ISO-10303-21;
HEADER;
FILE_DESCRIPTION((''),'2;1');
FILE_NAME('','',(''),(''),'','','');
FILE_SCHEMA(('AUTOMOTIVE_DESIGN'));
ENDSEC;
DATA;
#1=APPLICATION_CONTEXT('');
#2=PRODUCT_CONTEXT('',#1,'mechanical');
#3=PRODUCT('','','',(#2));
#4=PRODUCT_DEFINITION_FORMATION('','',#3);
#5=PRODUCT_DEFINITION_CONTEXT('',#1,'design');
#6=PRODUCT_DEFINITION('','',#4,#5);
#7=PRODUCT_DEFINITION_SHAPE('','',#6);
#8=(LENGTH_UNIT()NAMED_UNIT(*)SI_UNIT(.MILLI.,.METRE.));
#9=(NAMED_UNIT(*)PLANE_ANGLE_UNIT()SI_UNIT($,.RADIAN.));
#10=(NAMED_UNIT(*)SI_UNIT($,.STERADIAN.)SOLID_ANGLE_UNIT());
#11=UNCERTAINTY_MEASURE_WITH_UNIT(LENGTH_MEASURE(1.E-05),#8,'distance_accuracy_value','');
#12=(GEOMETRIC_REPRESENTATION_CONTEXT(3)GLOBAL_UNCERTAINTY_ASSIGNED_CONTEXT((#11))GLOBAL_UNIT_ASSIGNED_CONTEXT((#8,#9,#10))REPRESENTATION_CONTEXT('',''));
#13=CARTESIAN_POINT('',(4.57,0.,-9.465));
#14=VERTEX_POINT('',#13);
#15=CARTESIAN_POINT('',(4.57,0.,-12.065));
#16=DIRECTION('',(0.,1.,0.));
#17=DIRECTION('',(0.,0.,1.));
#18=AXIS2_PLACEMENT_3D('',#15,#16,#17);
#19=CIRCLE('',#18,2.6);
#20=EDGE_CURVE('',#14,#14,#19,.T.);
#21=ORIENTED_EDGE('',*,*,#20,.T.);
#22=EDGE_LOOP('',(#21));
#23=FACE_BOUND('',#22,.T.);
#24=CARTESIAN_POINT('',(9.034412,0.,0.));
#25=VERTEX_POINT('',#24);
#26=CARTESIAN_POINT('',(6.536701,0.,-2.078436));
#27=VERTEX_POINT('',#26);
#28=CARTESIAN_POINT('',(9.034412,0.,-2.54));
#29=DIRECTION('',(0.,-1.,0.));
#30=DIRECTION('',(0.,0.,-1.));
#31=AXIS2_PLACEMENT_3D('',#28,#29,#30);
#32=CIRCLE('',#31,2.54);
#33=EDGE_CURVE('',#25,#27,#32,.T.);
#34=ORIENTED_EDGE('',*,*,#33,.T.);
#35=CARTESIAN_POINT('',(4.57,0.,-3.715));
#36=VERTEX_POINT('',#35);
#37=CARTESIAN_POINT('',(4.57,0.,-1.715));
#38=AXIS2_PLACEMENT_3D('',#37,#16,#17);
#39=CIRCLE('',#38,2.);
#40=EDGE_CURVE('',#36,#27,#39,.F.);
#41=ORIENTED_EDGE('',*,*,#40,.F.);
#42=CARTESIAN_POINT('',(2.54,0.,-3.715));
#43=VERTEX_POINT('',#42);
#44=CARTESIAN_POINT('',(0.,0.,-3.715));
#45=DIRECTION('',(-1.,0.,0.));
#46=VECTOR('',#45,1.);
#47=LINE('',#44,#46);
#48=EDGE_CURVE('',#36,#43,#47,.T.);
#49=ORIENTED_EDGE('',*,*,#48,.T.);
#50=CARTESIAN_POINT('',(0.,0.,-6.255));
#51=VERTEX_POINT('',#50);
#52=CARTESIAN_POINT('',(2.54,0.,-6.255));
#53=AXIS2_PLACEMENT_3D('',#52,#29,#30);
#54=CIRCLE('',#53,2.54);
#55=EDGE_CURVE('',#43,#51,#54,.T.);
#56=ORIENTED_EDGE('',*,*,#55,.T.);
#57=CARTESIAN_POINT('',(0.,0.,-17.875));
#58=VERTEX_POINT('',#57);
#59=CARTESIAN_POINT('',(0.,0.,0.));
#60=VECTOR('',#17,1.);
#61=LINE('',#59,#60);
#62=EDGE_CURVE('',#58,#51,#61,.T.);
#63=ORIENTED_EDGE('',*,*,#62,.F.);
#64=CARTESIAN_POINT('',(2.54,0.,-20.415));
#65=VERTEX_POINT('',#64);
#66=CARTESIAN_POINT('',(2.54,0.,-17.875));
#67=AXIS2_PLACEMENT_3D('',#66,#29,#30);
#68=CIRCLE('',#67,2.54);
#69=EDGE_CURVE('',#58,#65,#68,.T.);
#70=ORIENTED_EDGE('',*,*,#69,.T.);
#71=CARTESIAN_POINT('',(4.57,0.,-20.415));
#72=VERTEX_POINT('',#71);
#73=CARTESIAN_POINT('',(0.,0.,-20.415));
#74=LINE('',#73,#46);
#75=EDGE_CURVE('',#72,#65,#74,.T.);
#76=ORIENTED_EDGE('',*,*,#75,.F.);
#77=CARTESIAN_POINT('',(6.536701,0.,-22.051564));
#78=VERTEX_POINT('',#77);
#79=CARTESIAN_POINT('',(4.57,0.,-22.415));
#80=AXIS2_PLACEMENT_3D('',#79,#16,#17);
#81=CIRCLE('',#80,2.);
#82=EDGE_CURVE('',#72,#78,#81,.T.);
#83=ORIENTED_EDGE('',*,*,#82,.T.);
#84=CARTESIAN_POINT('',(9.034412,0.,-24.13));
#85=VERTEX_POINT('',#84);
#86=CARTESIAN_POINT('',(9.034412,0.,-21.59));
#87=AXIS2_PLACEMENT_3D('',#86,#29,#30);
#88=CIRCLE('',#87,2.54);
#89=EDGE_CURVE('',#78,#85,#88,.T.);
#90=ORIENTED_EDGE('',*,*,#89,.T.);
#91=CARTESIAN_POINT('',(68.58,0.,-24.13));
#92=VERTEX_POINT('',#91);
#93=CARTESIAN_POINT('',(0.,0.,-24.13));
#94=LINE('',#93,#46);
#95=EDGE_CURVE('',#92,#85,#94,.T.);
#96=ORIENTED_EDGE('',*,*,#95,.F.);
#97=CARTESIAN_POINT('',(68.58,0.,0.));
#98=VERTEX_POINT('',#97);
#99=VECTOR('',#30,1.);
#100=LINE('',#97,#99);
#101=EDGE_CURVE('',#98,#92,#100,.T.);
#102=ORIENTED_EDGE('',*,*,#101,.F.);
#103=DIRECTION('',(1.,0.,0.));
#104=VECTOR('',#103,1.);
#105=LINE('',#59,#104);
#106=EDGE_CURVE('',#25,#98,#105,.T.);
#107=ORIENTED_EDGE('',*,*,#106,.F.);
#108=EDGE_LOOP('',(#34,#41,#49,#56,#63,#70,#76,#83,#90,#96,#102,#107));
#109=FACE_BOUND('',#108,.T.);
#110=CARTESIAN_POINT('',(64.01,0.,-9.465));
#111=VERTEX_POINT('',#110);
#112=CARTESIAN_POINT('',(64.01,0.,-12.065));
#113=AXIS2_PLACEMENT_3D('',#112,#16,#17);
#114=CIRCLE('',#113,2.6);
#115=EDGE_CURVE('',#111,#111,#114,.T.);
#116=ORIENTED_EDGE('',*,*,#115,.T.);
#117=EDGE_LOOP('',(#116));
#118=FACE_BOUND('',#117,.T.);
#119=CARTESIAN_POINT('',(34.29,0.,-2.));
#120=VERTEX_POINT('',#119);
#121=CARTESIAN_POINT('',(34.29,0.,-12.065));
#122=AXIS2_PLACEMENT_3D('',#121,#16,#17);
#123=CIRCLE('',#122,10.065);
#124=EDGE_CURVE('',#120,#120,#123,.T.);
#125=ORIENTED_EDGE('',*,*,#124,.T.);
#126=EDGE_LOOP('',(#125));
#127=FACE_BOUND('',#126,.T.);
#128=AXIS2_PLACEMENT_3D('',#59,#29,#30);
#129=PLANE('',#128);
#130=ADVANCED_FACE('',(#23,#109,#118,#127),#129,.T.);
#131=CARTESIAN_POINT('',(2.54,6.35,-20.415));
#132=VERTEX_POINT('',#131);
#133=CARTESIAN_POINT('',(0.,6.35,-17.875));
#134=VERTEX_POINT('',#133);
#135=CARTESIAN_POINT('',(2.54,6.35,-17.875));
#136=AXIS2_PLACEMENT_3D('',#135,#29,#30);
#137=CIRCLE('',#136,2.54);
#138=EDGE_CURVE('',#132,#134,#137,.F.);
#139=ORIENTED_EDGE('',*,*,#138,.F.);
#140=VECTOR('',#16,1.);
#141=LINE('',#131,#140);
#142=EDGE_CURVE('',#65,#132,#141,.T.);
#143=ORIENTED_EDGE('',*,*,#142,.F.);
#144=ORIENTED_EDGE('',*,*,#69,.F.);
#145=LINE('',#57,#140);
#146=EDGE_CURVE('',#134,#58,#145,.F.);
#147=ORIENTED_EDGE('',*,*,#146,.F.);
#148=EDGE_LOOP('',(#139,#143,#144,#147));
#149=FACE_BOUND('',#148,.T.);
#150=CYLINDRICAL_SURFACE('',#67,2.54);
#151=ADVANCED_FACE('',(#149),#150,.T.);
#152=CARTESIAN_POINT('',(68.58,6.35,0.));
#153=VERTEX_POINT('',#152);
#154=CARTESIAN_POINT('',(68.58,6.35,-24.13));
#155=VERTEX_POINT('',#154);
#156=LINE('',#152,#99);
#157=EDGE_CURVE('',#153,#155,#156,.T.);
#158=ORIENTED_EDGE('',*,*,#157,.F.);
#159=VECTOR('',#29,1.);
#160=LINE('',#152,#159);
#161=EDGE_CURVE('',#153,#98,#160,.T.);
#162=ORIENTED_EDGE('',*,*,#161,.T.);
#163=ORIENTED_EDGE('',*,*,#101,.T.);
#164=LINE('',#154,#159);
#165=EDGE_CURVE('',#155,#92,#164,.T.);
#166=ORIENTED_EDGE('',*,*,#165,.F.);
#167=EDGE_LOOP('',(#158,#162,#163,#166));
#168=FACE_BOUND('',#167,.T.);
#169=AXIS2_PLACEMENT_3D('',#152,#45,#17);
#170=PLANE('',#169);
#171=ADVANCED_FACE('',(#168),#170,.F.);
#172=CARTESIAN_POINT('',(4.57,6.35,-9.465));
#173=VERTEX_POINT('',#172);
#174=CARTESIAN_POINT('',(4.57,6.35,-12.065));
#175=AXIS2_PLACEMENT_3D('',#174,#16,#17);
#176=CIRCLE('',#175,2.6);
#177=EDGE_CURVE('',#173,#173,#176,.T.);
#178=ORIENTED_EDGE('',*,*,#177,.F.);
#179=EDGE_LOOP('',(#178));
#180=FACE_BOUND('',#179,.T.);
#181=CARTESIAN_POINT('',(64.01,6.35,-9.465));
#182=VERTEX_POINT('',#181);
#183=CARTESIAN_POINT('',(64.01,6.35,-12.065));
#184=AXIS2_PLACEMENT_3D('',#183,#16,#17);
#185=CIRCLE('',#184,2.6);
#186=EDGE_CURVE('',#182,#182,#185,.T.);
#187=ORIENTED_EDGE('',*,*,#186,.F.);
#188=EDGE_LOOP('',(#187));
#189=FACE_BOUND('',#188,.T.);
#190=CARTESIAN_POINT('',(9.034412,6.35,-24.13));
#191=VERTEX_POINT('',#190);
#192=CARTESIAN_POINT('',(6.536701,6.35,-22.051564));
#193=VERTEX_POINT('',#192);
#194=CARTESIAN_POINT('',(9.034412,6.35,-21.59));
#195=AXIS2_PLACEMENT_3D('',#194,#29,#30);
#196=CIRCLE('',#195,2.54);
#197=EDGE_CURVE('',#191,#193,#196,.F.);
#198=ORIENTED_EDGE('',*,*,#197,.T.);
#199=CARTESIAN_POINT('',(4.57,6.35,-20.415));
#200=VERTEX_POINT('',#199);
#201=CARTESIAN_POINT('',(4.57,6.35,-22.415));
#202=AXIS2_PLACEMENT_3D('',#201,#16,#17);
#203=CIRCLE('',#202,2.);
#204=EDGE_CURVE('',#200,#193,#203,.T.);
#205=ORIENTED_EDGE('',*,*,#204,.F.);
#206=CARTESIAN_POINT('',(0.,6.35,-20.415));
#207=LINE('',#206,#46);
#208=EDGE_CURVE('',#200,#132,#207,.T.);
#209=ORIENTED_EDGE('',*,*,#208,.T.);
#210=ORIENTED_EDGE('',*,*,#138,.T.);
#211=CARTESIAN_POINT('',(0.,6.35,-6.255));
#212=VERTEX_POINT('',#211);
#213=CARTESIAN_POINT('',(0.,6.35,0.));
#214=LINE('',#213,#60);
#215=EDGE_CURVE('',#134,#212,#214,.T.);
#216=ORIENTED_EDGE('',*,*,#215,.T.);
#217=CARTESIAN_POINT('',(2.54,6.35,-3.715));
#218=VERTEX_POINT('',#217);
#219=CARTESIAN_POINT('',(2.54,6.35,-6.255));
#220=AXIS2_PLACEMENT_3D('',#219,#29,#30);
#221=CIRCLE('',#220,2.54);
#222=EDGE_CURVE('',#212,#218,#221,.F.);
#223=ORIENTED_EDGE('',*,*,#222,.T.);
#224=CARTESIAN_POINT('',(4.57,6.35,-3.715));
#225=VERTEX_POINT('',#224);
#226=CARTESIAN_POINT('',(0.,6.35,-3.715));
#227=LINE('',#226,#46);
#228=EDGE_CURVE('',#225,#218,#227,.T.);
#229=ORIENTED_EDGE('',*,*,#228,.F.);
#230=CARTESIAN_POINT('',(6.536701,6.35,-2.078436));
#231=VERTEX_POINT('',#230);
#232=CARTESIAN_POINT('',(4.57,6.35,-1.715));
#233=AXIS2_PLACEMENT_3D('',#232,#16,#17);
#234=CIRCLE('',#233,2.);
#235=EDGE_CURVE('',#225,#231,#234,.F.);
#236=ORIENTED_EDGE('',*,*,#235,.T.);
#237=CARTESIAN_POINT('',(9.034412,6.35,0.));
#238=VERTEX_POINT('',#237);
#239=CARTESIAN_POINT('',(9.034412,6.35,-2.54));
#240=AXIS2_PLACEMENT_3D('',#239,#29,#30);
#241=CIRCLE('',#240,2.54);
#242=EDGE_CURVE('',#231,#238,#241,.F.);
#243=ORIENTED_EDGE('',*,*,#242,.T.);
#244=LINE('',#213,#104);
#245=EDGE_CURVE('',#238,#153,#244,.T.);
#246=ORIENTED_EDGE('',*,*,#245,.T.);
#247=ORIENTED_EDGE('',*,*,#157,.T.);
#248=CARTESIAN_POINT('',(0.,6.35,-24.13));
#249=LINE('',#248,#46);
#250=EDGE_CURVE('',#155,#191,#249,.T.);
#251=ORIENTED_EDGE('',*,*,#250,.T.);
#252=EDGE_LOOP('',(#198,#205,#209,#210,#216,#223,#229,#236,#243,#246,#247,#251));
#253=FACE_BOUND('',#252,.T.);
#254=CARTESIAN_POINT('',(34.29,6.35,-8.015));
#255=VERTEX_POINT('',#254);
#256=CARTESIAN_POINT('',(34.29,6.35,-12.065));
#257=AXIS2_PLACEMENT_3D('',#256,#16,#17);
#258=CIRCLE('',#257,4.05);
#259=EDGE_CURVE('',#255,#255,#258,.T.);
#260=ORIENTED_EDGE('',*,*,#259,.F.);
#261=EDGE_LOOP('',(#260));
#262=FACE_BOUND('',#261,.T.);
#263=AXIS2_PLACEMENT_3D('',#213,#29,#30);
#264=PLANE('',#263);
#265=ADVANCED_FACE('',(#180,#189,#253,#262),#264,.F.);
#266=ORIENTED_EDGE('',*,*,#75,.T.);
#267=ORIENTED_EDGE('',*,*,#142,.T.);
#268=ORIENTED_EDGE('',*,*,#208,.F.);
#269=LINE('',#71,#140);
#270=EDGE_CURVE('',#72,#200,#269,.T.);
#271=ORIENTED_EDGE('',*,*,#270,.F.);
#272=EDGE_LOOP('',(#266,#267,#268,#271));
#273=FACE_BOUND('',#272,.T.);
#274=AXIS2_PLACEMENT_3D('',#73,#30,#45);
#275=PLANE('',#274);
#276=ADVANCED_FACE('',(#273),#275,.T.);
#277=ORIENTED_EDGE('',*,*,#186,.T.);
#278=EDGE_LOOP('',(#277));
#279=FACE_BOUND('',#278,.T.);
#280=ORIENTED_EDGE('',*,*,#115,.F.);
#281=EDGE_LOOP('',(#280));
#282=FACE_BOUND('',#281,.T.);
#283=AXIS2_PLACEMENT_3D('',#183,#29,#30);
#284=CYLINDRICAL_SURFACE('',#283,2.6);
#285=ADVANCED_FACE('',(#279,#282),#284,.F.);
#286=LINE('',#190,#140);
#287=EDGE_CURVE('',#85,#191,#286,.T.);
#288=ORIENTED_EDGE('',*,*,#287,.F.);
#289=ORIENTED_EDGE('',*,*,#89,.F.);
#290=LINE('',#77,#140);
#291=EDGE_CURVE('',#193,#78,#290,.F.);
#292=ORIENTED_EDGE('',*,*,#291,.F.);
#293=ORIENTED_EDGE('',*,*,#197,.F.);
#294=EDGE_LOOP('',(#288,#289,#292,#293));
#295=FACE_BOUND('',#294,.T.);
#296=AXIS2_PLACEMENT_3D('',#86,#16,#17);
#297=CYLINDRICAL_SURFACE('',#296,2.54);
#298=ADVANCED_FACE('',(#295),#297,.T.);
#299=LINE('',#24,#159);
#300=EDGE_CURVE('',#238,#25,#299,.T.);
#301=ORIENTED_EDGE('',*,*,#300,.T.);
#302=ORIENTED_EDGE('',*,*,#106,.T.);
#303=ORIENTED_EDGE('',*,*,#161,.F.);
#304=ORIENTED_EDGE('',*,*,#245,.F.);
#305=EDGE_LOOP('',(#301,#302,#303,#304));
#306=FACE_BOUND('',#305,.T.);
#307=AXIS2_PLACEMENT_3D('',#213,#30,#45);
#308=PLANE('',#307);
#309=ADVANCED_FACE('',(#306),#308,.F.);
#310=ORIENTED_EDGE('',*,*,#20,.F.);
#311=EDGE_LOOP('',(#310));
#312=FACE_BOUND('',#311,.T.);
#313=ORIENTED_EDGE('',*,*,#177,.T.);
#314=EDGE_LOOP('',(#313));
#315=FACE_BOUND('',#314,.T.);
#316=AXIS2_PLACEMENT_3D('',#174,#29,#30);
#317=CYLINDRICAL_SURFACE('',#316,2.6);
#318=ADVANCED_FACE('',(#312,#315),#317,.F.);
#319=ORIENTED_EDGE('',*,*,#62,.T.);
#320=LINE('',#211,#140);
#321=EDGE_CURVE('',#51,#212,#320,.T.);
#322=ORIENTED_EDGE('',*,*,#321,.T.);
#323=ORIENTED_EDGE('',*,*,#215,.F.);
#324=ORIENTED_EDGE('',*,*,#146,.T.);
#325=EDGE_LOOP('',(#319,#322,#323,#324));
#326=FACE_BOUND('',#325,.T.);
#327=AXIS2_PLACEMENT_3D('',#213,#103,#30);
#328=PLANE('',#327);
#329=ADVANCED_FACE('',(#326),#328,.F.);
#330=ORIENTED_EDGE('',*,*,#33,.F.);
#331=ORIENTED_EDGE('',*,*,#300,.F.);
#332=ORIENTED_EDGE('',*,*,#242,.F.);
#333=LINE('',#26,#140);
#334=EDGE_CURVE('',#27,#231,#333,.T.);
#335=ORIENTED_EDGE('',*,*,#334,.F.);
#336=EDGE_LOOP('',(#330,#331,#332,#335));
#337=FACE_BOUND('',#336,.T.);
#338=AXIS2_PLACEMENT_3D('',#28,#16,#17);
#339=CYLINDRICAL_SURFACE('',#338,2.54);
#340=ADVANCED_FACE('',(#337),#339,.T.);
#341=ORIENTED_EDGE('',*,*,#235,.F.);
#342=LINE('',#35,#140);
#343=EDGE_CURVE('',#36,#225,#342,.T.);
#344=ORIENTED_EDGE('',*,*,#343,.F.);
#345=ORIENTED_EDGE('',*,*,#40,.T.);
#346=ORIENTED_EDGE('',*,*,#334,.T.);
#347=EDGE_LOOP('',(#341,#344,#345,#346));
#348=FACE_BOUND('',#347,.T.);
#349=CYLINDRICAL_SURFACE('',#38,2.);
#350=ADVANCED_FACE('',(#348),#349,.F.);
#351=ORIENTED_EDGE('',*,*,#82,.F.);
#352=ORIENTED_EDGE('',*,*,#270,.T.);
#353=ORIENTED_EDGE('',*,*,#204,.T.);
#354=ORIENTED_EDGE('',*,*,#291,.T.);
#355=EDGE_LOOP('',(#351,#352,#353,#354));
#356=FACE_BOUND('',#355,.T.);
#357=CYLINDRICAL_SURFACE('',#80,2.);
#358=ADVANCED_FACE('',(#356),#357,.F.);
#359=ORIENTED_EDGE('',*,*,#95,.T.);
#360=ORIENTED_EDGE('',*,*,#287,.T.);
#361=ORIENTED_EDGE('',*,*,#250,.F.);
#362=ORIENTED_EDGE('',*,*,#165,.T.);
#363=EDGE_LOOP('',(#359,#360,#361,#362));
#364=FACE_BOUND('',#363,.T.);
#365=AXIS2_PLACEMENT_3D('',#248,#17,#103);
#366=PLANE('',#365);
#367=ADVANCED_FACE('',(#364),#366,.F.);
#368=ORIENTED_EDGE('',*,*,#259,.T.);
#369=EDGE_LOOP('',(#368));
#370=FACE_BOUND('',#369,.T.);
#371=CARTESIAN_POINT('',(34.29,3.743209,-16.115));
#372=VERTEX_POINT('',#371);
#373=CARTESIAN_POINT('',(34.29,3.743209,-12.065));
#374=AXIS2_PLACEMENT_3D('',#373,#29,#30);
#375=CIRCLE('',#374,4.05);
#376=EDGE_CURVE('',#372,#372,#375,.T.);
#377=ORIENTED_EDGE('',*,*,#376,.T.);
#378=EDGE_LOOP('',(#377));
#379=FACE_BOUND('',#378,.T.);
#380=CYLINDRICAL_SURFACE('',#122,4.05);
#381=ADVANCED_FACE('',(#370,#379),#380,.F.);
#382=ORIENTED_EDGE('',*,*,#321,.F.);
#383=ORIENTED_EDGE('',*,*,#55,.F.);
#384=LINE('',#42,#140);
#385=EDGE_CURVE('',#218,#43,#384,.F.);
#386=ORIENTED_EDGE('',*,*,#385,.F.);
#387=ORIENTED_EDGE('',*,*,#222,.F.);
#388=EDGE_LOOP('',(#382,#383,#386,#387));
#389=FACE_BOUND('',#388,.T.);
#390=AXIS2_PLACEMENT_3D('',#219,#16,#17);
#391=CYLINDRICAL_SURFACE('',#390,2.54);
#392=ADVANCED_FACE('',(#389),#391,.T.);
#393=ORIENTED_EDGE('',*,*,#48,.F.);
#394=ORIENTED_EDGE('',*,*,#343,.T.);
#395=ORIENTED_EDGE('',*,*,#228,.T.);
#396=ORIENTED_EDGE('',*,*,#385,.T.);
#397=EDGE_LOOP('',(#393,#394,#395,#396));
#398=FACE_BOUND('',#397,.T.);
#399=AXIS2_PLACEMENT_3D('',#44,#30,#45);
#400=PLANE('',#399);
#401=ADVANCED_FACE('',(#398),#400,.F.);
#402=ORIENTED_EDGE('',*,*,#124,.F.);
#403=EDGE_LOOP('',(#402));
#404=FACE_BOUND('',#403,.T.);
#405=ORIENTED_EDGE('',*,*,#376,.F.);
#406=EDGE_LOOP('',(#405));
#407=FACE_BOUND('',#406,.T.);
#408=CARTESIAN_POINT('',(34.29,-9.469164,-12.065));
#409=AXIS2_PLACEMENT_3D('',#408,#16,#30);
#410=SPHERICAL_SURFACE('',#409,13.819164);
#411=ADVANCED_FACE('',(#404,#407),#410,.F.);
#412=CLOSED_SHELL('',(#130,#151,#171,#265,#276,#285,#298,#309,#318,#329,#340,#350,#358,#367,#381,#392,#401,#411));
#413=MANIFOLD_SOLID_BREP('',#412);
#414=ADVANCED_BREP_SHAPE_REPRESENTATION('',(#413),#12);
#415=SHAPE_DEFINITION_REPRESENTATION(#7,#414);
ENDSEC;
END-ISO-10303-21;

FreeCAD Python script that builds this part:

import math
import FreeCAD as App
import Part
import Sketcher

V = App.Vector
Q = App.Units.Quantity


def edges_at(feature, points):
    """Names of the edges that pass closest to the given points."""
    edges = feature.Shape.Edges
    near = lambda p: min(range(len(edges)), key=lambda i: edges[i].distToShape(Part.Vertex(*p))[0])
    return sorted({f"Edge{near(p) + 1}" for p in points})


def add_polygon(sketch, points):
    """Adds a closed chain of lines whose ends are joined by coincident constraints."""
    first, n = sketch.GeometryCount, len(points)
    for a, b in zip(points, points[1:] + points[:1]):
        sketch.addGeometry(Part.LineSegment(App.Vector(*a, 0), App.Vector(*b, 0)), False)
    for i in range(n):
        sketch.addConstraint(Sketcher.Constraint("Coincident", first + i, 2, first + (i + 1) % n, 1))

doc = App.newDocument("Part")
body = doc.addObject("PartDesign::Body", "Body")

# Sketch on XZ plane
sketch1 = body.newObject("Sketcher::SketchObject", "Sketch")
sketch1.AttachmentSupport = (doc.getObject("XZ_Plane"), [""])
sketch1.MapMode = "FlatFace"
add_polygon(sketch1, [(0, -24.13), (0, 0), (68.58, 0), (68.58, -24.13)])  # lines 0-3
sketch1.addGeometry(Part.Circle(V(4.57, -12.065, 0), V(0, 0, 1), 2.6), False)  # 4
sketch1.addGeometry(Part.Circle(V(64.01, -12.065, 0), V(0, 0, 1), 2.6), False)  # 5
sketch1.addConstraint([
    Sketcher.Constraint("Vertical", 0),
    Sketcher.Constraint("Horizontal", 1),
    Sketcher.Constraint("Vertical", 2),
    Sketcher.Constraint("Horizontal", 3),
    Sketcher.Constraint("Coincident", 0, 2, -1, 1),
    Sketcher.Constraint("Equal", 4, 5),
    Sketcher.Constraint("Horizontal", 4, 3, 5, 3),
    Sketcher.Constraint("DistanceX", 1, 1, 1, 2, Q("2.7 in")),
    Sketcher.Constraint("DistanceY", 0, 1, 0, 2, Q("0.95 in")),
    Sketcher.Constraint("Diameter", 4, Q("5.2 mm")),
    Sketcher.Constraint("DistanceY", 4, 3, -1, 1, Q("0.475 in")),
    Sketcher.Constraint("DistanceX", -1, 1, 4, 3, Q("4.57 mm")),
    Sketcher.Constraint("DistanceX", -1, 1, 5, 3, Q("64.01 mm")),
])
pad1 = body.newObject("PartDesign::Pad", "Pad")
pad1.Profile = sketch1
pad1.Length = Q("0.25 in")
pad1.Reversed = True

# Sketch on XZ plane
sketch2 = body.newObject("Sketcher::SketchObject", "Sketch001")
sketch2.AttachmentSupport = (doc.getObject("XZ_Plane"), [""])
sketch2.MapMode = "FlatFace"
sketch2.AttachmentOffset = App.Placement(V(0, 0, -0.25 * 25.4), App.Rotation())
sketch2.addGeometry([
    Part.LineSegment(V(4.57, -3.715, 0), V(0, -3.715, 0)),  # 0
    Part.LineSegment(V(0, -3.715, 0), V(0, 0, 0)),  # 1
    Part.LineSegment(V(0, 0, 0), V(6.57, 0, 0)),  # 2
    Part.LineSegment(V(6.57, 0, 0), V(6.57, -1.715, 0)),  # 3
    Part.ArcOfCircle(Part.Circle(V(4.57, -1.715, 0), V(0, 0, 1), 2), math.radians(-90), math.radians(0)),  # 4
    Part.ArcOfCircle(Part.Circle(V(4.57, -22.415, 0), V(0, 0, 1), 2), math.radians(0), math.radians(90)),  # 5
    Part.LineSegment(V(6.57, -22.415, 0), V(6.57, -24.13, 0)),  # 6
    Part.LineSegment(V(6.57, -24.13, 0), V(0, -24.13, 0)),  # 7
    Part.LineSegment(V(0, -24.13, 0), V(0, -20.415, 0)),  # 8
    Part.LineSegment(V(0, -20.415, 0), V(4.57, -20.415, 0)),  # 9
], False)
sketch2.addConstraint([
    Sketcher.Constraint("Coincident", 0, 2, 1, 1),
    Sketcher.Constraint("Coincident", 1, 2, 2, 1),
    Sketcher.Constraint("Coincident", 2, 2, 3, 1),
    Sketcher.Constraint("Tangent", 3, 2, 4, 2),
    Sketcher.Constraint("Tangent", 4, 1, 0, 1),
    Sketcher.Constraint("Tangent", 5, 1, 6, 1),
    Sketcher.Constraint("Coincident", 6, 2, 7, 1),
    Sketcher.Constraint("Coincident", 7, 2, 8, 1),
    Sketcher.Constraint("Coincident", 8, 2, 9, 1),
    Sketcher.Constraint("Tangent", 9, 2, 5, 2),
    Sketcher.Constraint("Horizontal", 0),
    Sketcher.Constraint("Vertical", 1),
    Sketcher.Constraint("Horizontal", 2),
    Sketcher.Constraint("Vertical", 3),
    Sketcher.Constraint("Vertical", 6),
    Sketcher.Constraint("Horizontal", 7),
    Sketcher.Constraint("Vertical", 8),
    Sketcher.Constraint("Horizontal", 9),
    Sketcher.Constraint("Coincident", 1, 2, -1, 1),
    Sketcher.Constraint("Equal", 4, 5),
    Sketcher.Constraint("PointOnObject", 7, 2, -2),
    Sketcher.Constraint("Vertical", 4, 3, 5, 3),
    Sketcher.Constraint("Equal", 3, 6),
    Sketcher.Constraint("DistanceY", 6, 2, -1, 1, Q("0.95 in")),
    Sketcher.Constraint("Radius", 4, Q("2 mm")),
    Sketcher.Constraint("DistanceX", 0, 2, 0, 1, Q("4.57 mm")),
    Sketcher.Constraint("DistanceY", 1, 1, 1, 2, Q("3.715 mm")),
])
pocket1 = body.newObject("PartDesign::Pocket", "Pocket")
pocket1.Profile = sketch2
pocket1.Type = "ThroughAll"
pocket1.Reversed = True
doc.recompute()

fillet = body.newObject("PartDesign::Fillet", "Fillet")
fillet.Base = (pocket1, edges_at(pocket1, [
    (6.57, 3.175, 0),
    (0, 3.175, -3.715),
    (0, 3.175, -20.415),
    (6.57, 3.175, -24.13),
]))
fillet.Radius = Q("0.1 in")

# Sketch on XZ plane
sketch3 = body.newObject("Sketcher::SketchObject", "Sketch002")
sketch3.AttachmentSupport = (doc.getObject("XZ_Plane"), [""])
sketch3.MapMode = "FlatFace"
sketch3.AttachmentOffset = App.Placement(V(0, 0, -0.25 * 25.4), App.Rotation())
sketch3.addGeometry(Part.Circle(V(34.29, -12.065, 0), V(0, 0, 1), 4.05), False)
sketch3.addConstraint([
    Sketcher.Constraint("Diameter", 0, Q("8.1 mm")),
    Sketcher.Constraint("DistanceX", -1, 1, 0, 3, Q("1.35 in")),
    Sketcher.Constraint("DistanceY", 0, 3, -1, 1, Q("0.475 in")),
])
pocket2 = body.newObject("PartDesign::Pocket", "Pocket001")
pocket2.Profile = sketch3
pocket2.Type = "ThroughAll"
pocket2.Reversed = True

# Sketch on YZ plane
sketch4 = body.newObject("Sketcher::SketchObject", "Sketch003")
sketch4.AttachmentSupport = (doc.getObject("YZ_Plane"), [""])
sketch4.MapMode = "FlatFace"
sketch4.AttachmentOffset = App.Placement(V(0, 0, 1.35 * 25.4), App.Rotation())
sketch4.addGeometry([
    Part.LineSegment(V(0, -12.065, 0), V(0, -22.13, 0)),
    Part.ArcOfCircle(Part.Circle(V(-9.469164, -12.065, 0), V(0, 0, 1), 13.819164), math.radians(-46.747109), math.radians(0)),
    Part.LineSegment(V(4.35, -12.065, 0), V(0, -12.065, 0)),
], False)
sketch4.addGeometry(Part.LineSegment(V(4.35, -12.065, 0), V(-9.469164, -12.065, 0)), True)  # axis
sketch4.addConstraint([
    Sketcher.Constraint("Coincident", 0, 2, 1, 1),
    Sketcher.Constraint("Coincident", 1, 2, 2, 1),
    Sketcher.Constraint("Coincident", 2, 2, 0, 1),
    Sketcher.Constraint("Vertical", 0),
    Sketcher.Constraint("Horizontal", 2),
    Sketcher.Constraint("Horizontal", 3),
    Sketcher.Constraint("Coincident", 3, 1, 1, 2),
    Sketcher.Constraint("Coincident", 3, 2, 1, 3),
    Sketcher.Constraint("PointOnObject", 0, 2, -2),
    Sketcher.Constraint("DistanceY", 1, 3, -1, 1, Q("0.475 in")),
    Sketcher.Constraint("DistanceX", 2, 2, 2, 1, Q("4.35 mm")),
    Sketcher.Constraint("DistanceY", 0, 2, 0, 1, Q("10.065 mm")),
])
groove = body.newObject("PartDesign::Groove", "Groove")
groove.Profile = sketch4
groove.ReferenceAxis = (sketch4, ["Axis0"])
groove.Angle = 360

doc.recompute()
